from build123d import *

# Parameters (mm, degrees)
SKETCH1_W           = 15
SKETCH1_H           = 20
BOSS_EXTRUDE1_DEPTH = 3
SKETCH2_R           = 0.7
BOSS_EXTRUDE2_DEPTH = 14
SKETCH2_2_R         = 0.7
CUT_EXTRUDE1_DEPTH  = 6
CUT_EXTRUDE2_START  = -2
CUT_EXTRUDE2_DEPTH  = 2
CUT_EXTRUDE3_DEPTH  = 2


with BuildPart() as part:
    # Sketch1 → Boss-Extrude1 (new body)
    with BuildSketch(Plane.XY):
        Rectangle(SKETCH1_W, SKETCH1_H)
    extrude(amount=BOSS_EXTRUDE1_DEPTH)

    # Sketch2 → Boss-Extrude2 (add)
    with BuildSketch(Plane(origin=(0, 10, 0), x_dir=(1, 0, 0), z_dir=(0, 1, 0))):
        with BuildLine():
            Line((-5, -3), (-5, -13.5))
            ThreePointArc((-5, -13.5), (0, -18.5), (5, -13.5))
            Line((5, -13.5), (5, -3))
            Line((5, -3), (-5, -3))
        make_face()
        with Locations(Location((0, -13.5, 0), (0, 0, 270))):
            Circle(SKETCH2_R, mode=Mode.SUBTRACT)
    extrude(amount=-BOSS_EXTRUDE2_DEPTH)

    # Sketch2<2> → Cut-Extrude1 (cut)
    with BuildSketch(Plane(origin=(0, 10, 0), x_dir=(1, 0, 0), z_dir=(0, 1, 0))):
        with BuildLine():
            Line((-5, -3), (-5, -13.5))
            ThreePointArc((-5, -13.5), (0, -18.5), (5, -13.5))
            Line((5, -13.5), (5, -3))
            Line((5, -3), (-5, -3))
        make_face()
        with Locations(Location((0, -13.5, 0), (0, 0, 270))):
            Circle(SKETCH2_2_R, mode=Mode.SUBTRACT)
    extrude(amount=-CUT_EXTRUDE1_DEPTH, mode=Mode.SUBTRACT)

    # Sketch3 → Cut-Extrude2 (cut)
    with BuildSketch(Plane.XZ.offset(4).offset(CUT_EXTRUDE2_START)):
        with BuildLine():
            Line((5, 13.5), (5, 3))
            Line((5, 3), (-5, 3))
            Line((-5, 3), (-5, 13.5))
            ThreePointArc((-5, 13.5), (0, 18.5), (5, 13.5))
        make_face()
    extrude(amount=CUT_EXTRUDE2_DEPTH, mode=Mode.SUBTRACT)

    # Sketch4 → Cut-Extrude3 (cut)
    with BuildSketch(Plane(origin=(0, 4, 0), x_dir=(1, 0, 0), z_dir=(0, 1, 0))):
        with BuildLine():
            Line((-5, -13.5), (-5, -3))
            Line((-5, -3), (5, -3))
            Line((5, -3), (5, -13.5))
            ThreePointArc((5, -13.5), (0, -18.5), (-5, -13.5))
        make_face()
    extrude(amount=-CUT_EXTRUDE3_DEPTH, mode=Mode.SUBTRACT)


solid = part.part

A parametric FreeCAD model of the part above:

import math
import FreeCAD as App
import Part
import Sketcher
Q = App.Units.Quantity

doc = App.newDocument("Part")
params = doc.addObject("Spreadsheet::Sheet", "Params")
for row, (alias, value) in enumerate([
    ("sketch1_width", "15 mm"),
    ("sketch1_height", "20 mm"),
    ("pad1_length", "3 mm"),
    ("sketch2_radius", "5 mm"),
    ("sketch2_diameter", "1.4 mm"),
    ("sketch2_height", "10.5 mm"),
    ("pad2_length", "14 mm"),
    ("sketch3_radius", "5 mm"),
    ("sketch3_diameter", "1.4 mm"),
    ("sketch3_height", "10.5 mm"),
    ("pocket1_length", "6 mm"),
    ("sketch4_radius", "5 mm"),
    ("sketch4_height", "10.5 mm"),
    ("pocket2_length", "2 mm"),
    ("sketch5_radius", "5 mm"),
    ("sketch5_height", "10.5 mm"),
    ("pocket3_length", "2 mm"),
], start=1):
    params.set(f"A{row}", alias)
    params.set(f"B{row}", "=" + value)
    params.setAlias(f"B{row}", alias)

body = doc.addObject("PartDesign::Body", "Body")

# Sketch on XY plane
sketch1 = body.newObject("Sketcher::SketchObject", "Sketch")
sketch1.AttachmentSupport = (doc.getObject("XY_Plane"), [""])
sketch1.MapMode = "FlatFace"
sketch1.addGeometry(Part.LineSegment(App.Vector(-8, 10, 0), App.Vector(-8, -10, 0)), False)
sketch1.addGeometry(Part.LineSegment(App.Vector(-8, -10, 0), App.Vector(8, -10, 0)), False)
sketch1.addGeometry(Part.LineSegment(App.Vector(8, -10, 0), App.Vector(8, 10, 0)), False)
sketch1.addGeometry(Part.LineSegment(App.Vector(8, 10, 0), App.Vector(-8, 10, 0)), False)
sketch1.addConstraint(Sketcher.Constraint("Coincident", 0, 2, 1, 1))
sketch1.addConstraint(Sketcher.Constraint("Coincident", 1, 2, 2, 1))
sketch1.addConstraint(Sketcher.Constraint("Coincident", 2, 2, 3, 1))
sketch1.addConstraint(Sketcher.Constraint("Coincident", 3, 2, 0, 1))
sketch1.addConstraint(Sketcher.Constraint("Vertical", 0))
sketch1.addConstraint(Sketcher.Constraint("Horizontal", 1))
sketch1.addConstraint(Sketcher.Constraint("Vertical", 2))
sketch1.addConstraint(Sketcher.Constraint("Horizontal", 3))
sketch1.addConstraint(Sketcher.Constraint("Symmetric", 0, 2, 2, 2, -1, 1))
sketch1.addConstraint(Sketcher.Constraint("DistanceX", 1, 1, 1, 2, Q("15 mm")))
sketch1.addConstraint(Sketcher.Constraint("DistanceY", 0, 2, 0, 1, Q("20 mm")))
sketch1.setExpression("Constraints[9]", "Params.sketch1_width")
sketch1.setExpression("Constraints[10]", "Params.sketch1_height")
pad1 = body.newObject("PartDesign::Pad", "Pad")
pad1.Profile = sketch1
pad1.setExpression("Length", "Params.pad1_length")

# Sketch on XZ plane
sketch2 = body.newObject("Sketcher::SketchObject", "Sketch001")
sketch2.AttachmentSupport = (doc.getObject("XZ_Plane"), [""])
sketch2.MapMode = "FlatFace"
sketch2.AttachmentOffset = App.Placement(App.Vector(0, 0, -10), App.Rotation())
sketch2.addGeometry(Part.LineSegment(App.Vector(-5, 3, 0), App.Vector(-5, 13.5, 0)), False)
sketch2.addGeometry(Part.ArcOfCircle(Part.Circle(App.Vector(0, 13.5, 0), App.Vector(0, 0, 1), 5), math.radians(0), math.radians(180)), False)
sketch2.addGeometry(Part.LineSegment(App.Vector(5, 13.5, 0), App.Vector(5, 3, 0)), False)
sketch2.addGeometry(Part.LineSegment(App.Vector(5, 3, 0), App.Vector(-5, 3, 0)), False)
sketch2.addGeometry(Part.Circle(App.Vector(0, 13.5, 0), App.Vector(0, 0, 1), 0.7), False)
sketch2.addConstraint(Sketcher.Constraint("Tangent", 0, 2, 1, 2))
sketch2.addConstraint(Sketcher.Constraint("Tangent", 1, 1, 2, 1))
sketch2.addConstraint(Sketcher.Constraint("Coincident", 2, 2, 3, 1))
sketch2.addConstraint(Sketcher.Constraint("Coincident", 3, 2, 0, 1))
sketch2.addConstraint(Sketcher.Constraint("Vertical", 0))
sketch2.addConstraint(Sketcher.Constraint("Vertical", 2))
sketch2.addConstraint(Sketcher.Constraint("Horizontal", 3))
sketch2.addConstraint(Sketcher.Constraint("Coincident", 4, 3, 1, 3))
sketch2.addConstraint(Sketcher.Constraint("PointOnObject", 1, 3, -2))
sketch2.addConstraint(Sketcher.Constraint("Radius", 1, Q("5 mm")))
sketch2.addConstraint(Sketcher.Constraint("Diameter", 4, Q("1.4 mm")))
sketch2.addConstraint(Sketcher.Constraint("DistanceY", 0, 1, 0, 2, Q("10.5 mm")))
sketch2.addConstraint(Sketcher.Constraint("DistanceY", -1, 1, 2, 2, Q("3 mm")))
sketch2.setExpression("Constraints[9]", "Params.sketch2_radius")
sketch2.setExpression("Constraints[10]", "Params.sketch2_diameter")
sketch2.setExpression("Constraints[11]", "Params.sketch2_height")
pad2 = body.newObject("PartDesign::Pad", "Pad001")
pad2.Profile = sketch2
pad2.setExpression("Length", "Params.pad2_length")

# Sketch on XZ plane
sketch3 = body.newObject("Sketcher::SketchObject", "Sketch002")
sketch3.AttachmentSupport = (doc.getObject("XZ_Plane"), [""])
sketch3.MapMode = "FlatFace"
sketch3.AttachmentOffset = App.Placement(App.Vector(0, 0, -10), App.Rotation())
sketch3.addGeometry(Part.LineSegment(App.Vector(-5, 3, 0), App.Vector(-5, 13.5, 0)), False)
sketch3.addGeometry(Part.ArcOfCircle(Part.Circle(App.Vector(0, 13.5, 0), App.Vector(0, 0, 1), 5), math.radians(0), math.radians(180)), False)
sketch3.addGeometry(Part.LineSegment(App.Vector(5, 13.5, 0), App.Vector(5, 3, 0)), False)
sketch3.addGeometry(Part.LineSegment(App.Vector(5, 3, 0), App.Vector(-5, 3, 0)), False)
sketch3.addGeometry(Part.Circle(App.Vector(0, 13.5, 0), App.Vector(0, 0, 1), 0.7), False)
sketch3.addConstraint(Sketcher.Constraint("Tangent", 0, 2, 1, 2))
sketch3.addConstraint(Sketcher.Constraint("Tangent", 1, 1, 2, 1))
sketch3.addConstraint(Sketcher.Constraint("Coincident", 2, 2, 3, 1))
sketch3.addConstraint(Sketcher.Constraint("Coincident", 3, 2, 0, 1))
sketch3.addConstraint(Sketcher.Constraint("Vertical", 0))
sketch3.addConstraint(Sketcher.Constraint("Vertical", 2))
sketch3.addConstraint(Sketcher.Constraint("Horizontal", 3))
sketch3.addConstraint(Sketcher.Constraint("Coincident", 4, 3, 1, 3))
sketch3.addConstraint(Sketcher.Constraint("PointOnObject", 1, 3, -2))
sketch3.addConstraint(Sketcher.Constraint("Radius", 1, Q("5 mm")))
sketch3.addConstraint(Sketcher.Constraint("Diameter", 4, Q("1.4 mm")))
sketch3.addConstraint(Sketcher.Constraint("DistanceY", 0, 1, 0, 2, Q("10.5 mm")))
sketch3.addConstraint(Sketcher.Constraint("DistanceY", -1, 1, 2, 2, Q("3 mm")))
sketch3.setExpression("Constraints[9]", "Params.sketch3_radius")
sketch3.setExpression("Constraints[10]", "Params.sketch3_diameter")
sketch3.setExpression("Constraints[11]", "Params.sketch3_height")
pocket1 = body.newObject("PartDesign::Pocket", "Pocket")
pocket1.Profile = sketch3
pocket1.setExpression("Length", "Params.pocket1_length")
pocket1.Reversed = True

# Sketch on XZ plane
sketch4 = body.newObject("Sketcher::SketchObject", "Sketch003")
sketch4.AttachmentSupport = (doc.getObject("XZ_Plane"), [""])
sketch4.MapMode = "FlatFace"
sketch4.AttachmentOffset = App.Placement(App.Vector(0, 0, 2), App.Rotation())
sketch4.addGeometry(Part.LineSegment(App.Vector(5, 3, 0), App.Vector(5, 14, 0)), False)
sketch4.addGeometry(Part.ArcOfCircle(Part.Circle(App.Vector(0, 14, 0), App.Vector(0, 0, 1), 5), math.radians(0), math.radians(180)), False)
sketch4.addGeometry(Part.LineSegment(App.Vector(-5, 14, 0), App.Vector(-5, 3, 0)), False)
sketch4.addGeometry(Part.LineSegment(App.Vector(-5, 3, 0), App.Vector(5, 3, 0)), False)
sketch4.addConstraint(Sketcher.Constraint("Tangent", 0, 2, 1, 1))
sketch4.addConstraint(Sketcher.Constraint("Tangent", 1, 2, 2, 1))
sketch4.addConstraint(Sketcher.Constraint("Coincident", 2, 2, 3, 1))
sketch4.addConstraint(Sketcher.Constraint("Coincident", 3, 2, 0, 1))
sketch4.addConstraint(Sketcher.Constraint("Vertical", 0))
sketch4.addConstraint(Sketcher.Constraint("Vertical", 2))
sketch4.addConstraint(Sketcher.Constraint("Horizontal", 3))
sketch4.addConstraint(Sketcher.Constraint("PointOnObject", 1, 3, -2))
sketch4.addConstraint(Sketcher.Constraint("Radius", 1, Q("5 mm")))
sketch4.addConstraint(Sketcher.Constraint("DistanceY", 0, 1, 0, 2, Q("10.5 mm")))
sketch4.addConstraint(Sketcher.Constraint("DistanceY", -1, 1, 2, 2, Q("3 mm")))
sketch4.setExpression("Constraints[8]", "Params.sketch4_radius")
sketch4.setExpression("Constraints[9]", "Params.sketch4_height")
pocket2 = body.newObject("PartDesign::Pocket", "Pocket001")
pocket2.Profile = sketch4
pocket2.setExpression("Length", "Params.pocket2_length")
pocket2.Reversed = True

# Sketch on XZ plane
sketch5 = body.newObject("Sketcher::SketchObject", "Sketch004")
sketch5.AttachmentSupport = (doc.getObject("XZ_Plane"), [""])
sketch5.MapMode = "FlatFace"
sketch5.AttachmentOffset = App.Placement(App.Vector(0, 0, -4), App.Rotation())
sketch5.addGeometry(Part.LineSegment(App.Vector(-5, 3, 0), App.Vector(-5, 14, 0)), False)
sketch5.addGeometry(Part.ArcOfCircle(Part.Circle(App.Vector(0, 14, 0), App.Vector(0, 0, 1), 5), math.radians(0), math.radians(180)), False)
sketch5.addGeometry(Part.LineSegment(App.Vector(5, 14, 0), App.Vector(5, 3, 0)), False)
sketch5.addGeometry(Part.LineSegment(App.Vector(5, 3, 0), App.Vector(-5, 3, 0)), False)
sketch5.addConstraint(Sketcher.Constraint("Tangent", 0, 2, 1, 2))
sketch5.addConstraint(Sketcher.Constraint("Tangent", 1, 1, 2, 1))
sketch5.addConstraint(Sketcher.Constraint("Coincident", 2, 2, 3, 1))
sketch5.addConstraint(Sketcher.Constraint("Coincident", 3, 2, 0, 1))
sketch5.addConstraint(Sketcher.Constraint("Vertical", 0))
sketch5.addConstraint(Sketcher.Constraint("Vertical", 2))
sketch5.addConstraint(Sketcher.Constraint("Horizontal", 3))
sketch5.addConstraint(Sketcher.Constraint("PointOnObject", 1, 3, -2))
sketch5.addConstraint(Sketcher.Constraint("Radius", 1, Q("5 mm")))
sketch5.addConstraint(Sketcher.Constraint("DistanceY", 0, 1, 0, 2, Q("10.5 mm")))
sketch5.addConstraint(Sketcher.Constraint("DistanceY", -1, 1, 2, 2, Q("3 mm")))
sketch5.setExpression("Constraints[8]", "Params.sketch5_radius")
sketch5.setExpression("Constraints[9]", "Params.sketch5_height")
pocket3 = body.newObject("PartDesign::Pocket", "Pocket002")
pocket3.Profile = sketch5
pocket3.setExpression("Length", "Params.pocket3_length")
pocket3.Reversed = True

doc.recompute()
